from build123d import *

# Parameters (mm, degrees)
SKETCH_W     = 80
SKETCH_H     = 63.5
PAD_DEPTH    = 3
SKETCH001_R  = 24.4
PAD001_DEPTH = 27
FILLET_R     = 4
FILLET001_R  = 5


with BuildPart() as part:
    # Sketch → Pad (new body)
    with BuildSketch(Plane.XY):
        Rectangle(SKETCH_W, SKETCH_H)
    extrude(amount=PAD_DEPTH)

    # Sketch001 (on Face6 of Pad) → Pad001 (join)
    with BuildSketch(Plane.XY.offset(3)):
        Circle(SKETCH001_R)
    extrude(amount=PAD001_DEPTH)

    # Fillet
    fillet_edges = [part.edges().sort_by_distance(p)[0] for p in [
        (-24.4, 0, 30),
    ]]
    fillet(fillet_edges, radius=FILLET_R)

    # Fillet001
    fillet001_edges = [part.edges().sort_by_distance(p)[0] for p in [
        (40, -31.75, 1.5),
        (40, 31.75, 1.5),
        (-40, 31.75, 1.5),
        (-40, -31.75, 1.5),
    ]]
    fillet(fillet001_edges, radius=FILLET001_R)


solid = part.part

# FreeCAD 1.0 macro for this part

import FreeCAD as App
import Part
import Sketcher
Q = App.Units.Quantity


def edges_at(feature, points):
    """Names of the edges that pass closest to the given points."""
    edges = feature.Shape.Edges
    near = lambda p: min(range(len(edges)), key=lambda i: edges[i].distToShape(Part.Vertex(*p))[0])
    return sorted({f"Edge{near(p) + 1}" for p in points})

doc = App.newDocument("Part")
body = doc.addObject("PartDesign::Body", "Body")

sketch1 = body.newObject("Sketcher::SketchObject", "Sketch")
sketch1.AttachmentSupport = (doc.getObject("XY_Plane"), [""])
sketch1.MapMode = "FlatFace"
sketch1.addGeometry([
    Part.LineSegment(App.Vector(-40, 32, 0), App.Vector(-40, -32, 0)),
    Part.LineSegment(App.Vector(-40, -32, 0), App.Vector(40, -32, 0)),
    Part.LineSegment(App.Vector(40, -32, 0), App.Vector(40, 32, 0)),
    Part.LineSegment(App.Vector(40, 32, 0), App.Vector(-40, 32, 0)),
], False)
sketch1.addConstraint([
    Sketcher.Constraint("Coincident", 0, 2, 1, 1),
    Sketcher.Constraint("Coincident", 1, 2, 2, 1),
    Sketcher.Constraint("Coincident", 2, 2, 3, 1),
    Sketcher.Constraint("Coincident", 3, 2, 0, 1),
    Sketcher.Constraint("Vertical", 0),
    Sketcher.Constraint("Horizontal", 1),
    Sketcher.Constraint("Vertical", 2),
    Sketcher.Constraint("Horizontal", 3),
    Sketcher.Constraint("Symmetric", 0, 2, 2, 2, -1, 1),
    Sketcher.Constraint("DistanceX", 1, 1, 1, 2, Q("80 mm")),
    Sketcher.Constraint("DistanceY", 0, 2, 0, 1, Q("63.5 mm")),
])
pad1 = body.newObject("PartDesign::Pad", "Pad")
pad1.Profile = sketch1
pad1.Length = 3

sketch2 = body.newObject("Sketcher::SketchObject", "Sketch001")
sketch2.AttachmentSupport = (doc.getObject("XY_Plane"), [""])
sketch2.MapMode = "FlatFace"
sketch2.AttachmentOffset = App.Placement(App.Vector(0, 0, 3), App.Rotation())
sketch2.addGeometry(Part.Circle(App.Vector(0, 0, 0), App.Vector(0, 0, 1), 24), False)
sketch2.addConstraint([
    Sketcher.Constraint("Coincident", 0, 3, -1, 1),
    Sketcher.Constraint("Diameter", 0, Q("48.8 mm")),
])
pad2 = body.newObject("PartDesign::Pad", "Pad001")
pad2.Profile = sketch2
pad2.Length = 27
doc.recompute()

fillet = body.newObject("PartDesign::Fillet", "Fillet")
fillet.Base = (pad2, edges_at(pad2, [(-24.4, 0, 30)]))
fillet.Radius = 4
doc.recompute()

fillet2 = body.newObject("PartDesign::Fillet", "Fillet001")
fillet2.Base = (fillet, edges_at(fillet, [
    (40, -31.75, 1.5),
    (40, 31.75, 1.5),
    (-40, 31.75, 1.5),
    (-40, -31.75, 1.5),
]))
fillet2.Radius = 5

doc.recompute()
